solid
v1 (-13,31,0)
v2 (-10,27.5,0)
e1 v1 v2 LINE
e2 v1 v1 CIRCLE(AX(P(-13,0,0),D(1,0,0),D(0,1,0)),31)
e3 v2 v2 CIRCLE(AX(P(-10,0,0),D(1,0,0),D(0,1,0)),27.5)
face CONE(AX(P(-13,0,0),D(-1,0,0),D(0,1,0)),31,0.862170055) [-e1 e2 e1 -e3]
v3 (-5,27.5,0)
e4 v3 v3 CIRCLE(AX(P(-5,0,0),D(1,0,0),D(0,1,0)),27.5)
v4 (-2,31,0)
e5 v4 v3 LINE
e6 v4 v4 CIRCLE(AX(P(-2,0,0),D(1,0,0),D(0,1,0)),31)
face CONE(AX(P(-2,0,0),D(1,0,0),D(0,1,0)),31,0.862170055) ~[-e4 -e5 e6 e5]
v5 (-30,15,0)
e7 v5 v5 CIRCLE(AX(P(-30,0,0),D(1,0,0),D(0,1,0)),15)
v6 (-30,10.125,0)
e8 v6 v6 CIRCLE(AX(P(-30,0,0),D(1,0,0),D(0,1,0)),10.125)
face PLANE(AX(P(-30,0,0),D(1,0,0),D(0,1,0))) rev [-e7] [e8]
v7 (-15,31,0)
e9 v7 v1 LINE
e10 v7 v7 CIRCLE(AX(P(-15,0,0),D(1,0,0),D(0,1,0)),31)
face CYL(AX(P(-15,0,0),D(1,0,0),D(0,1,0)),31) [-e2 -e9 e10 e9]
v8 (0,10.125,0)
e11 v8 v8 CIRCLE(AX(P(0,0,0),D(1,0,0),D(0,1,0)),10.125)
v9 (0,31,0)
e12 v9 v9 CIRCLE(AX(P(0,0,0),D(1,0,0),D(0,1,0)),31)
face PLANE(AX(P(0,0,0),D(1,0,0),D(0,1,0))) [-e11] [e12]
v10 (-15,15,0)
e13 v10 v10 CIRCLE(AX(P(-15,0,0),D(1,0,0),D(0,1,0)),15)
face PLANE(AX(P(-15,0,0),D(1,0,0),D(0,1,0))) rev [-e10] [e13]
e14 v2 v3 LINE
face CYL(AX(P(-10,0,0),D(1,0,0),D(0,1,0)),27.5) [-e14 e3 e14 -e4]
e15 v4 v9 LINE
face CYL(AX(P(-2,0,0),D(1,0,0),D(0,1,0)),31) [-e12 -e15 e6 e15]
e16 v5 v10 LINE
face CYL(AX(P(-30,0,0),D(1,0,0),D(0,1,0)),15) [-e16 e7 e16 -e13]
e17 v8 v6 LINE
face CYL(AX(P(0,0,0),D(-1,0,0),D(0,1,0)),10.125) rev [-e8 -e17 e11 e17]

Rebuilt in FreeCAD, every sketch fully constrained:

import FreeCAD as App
import Part
import Sketcher


def add_polygon(sketch, points):
    """Adds a closed chain of lines whose ends are joined by coincident constraints."""
    first, n = sketch.GeometryCount, len(points)
    for a, b in zip(points, points[1:] + points[:1]):
        sketch.addGeometry(Part.LineSegment(App.Vector(*a, 0), App.Vector(*b, 0)), False)
    for i in range(n):
        sketch.addConstraint(Sketcher.Constraint("Coincident", first + i, 2, first + (i + 1) % n, 1))

doc = App.newDocument("Part")
body = doc.addObject("PartDesign::Body", "Body")

# Sketch on XY plane
sketch1 = body.newObject("Sketcher::SketchObject", "Sketch")
sketch1.AttachmentSupport = (doc.getObject("XY_Plane"), [""])
sketch1.MapMode = "FlatFace"
add_polygon(sketch1, [(-30, 10.1), (0, 10.1), (0, 31), (-2, 31), (-5, 27.5), (-10, 27.5), (-13, 31), (-15, 31), (-15, 15), (-30, 15)])  # lines 0-9
sketch1.addConstraint([
    Sketcher.Constraint("Horizontal", 0),
    Sketcher.Constraint("Vertical", 1),
    Sketcher.Constraint("Horizontal", 2),
    Sketcher.Constraint("Horizontal", 4),
    Sketcher.Constraint("Horizontal", 6),
    Sketcher.Constraint("Vertical", 7),
    Sketcher.Constraint("Horizontal", 8),
    Sketcher.Constraint("Vertical", 9),
    Sketcher.Constraint("PointOnObject", 0, 2, -2),
    Sketcher.Constraint("Horizontal", 2, 2, 5, 2),
    Sketcher.Constraint("Equal", 2, 6),
    Sketcher.Constraint("Equal", 3, 5),
    Sketcher.Constraint("DistanceX", 2, 2, 2, 1, 2.0),
    Sketcher.Constraint("DistanceX", 4, 2, 4, 1, 5.0),
    Sketcher.Constraint("DistanceX", 8, 2, 8, 1, 15.0),
    Sketcher.Constraint("DistanceY", -1, 1, 1, 2, 31.0),
    Sketcher.Constraint("DistanceX", 3, 2, -1, 1, 5.0),
    Sketcher.Constraint("DistanceY", -1, 1, 7, 2, 15.0),
    Sketcher.Constraint("DistanceY", -1, 1, 3, 2, 27.5),
    Sketcher.Constraint("DistanceY", -1, 1, 0, 2, 10.125),
])
revolution = body.newObject("PartDesign::Revolution", "Revolution")
revolution.Profile = sketch1
revolution.ReferenceAxis = (sketch1, ["H_Axis"])
revolution.Angle = 360

doc.recompute()
